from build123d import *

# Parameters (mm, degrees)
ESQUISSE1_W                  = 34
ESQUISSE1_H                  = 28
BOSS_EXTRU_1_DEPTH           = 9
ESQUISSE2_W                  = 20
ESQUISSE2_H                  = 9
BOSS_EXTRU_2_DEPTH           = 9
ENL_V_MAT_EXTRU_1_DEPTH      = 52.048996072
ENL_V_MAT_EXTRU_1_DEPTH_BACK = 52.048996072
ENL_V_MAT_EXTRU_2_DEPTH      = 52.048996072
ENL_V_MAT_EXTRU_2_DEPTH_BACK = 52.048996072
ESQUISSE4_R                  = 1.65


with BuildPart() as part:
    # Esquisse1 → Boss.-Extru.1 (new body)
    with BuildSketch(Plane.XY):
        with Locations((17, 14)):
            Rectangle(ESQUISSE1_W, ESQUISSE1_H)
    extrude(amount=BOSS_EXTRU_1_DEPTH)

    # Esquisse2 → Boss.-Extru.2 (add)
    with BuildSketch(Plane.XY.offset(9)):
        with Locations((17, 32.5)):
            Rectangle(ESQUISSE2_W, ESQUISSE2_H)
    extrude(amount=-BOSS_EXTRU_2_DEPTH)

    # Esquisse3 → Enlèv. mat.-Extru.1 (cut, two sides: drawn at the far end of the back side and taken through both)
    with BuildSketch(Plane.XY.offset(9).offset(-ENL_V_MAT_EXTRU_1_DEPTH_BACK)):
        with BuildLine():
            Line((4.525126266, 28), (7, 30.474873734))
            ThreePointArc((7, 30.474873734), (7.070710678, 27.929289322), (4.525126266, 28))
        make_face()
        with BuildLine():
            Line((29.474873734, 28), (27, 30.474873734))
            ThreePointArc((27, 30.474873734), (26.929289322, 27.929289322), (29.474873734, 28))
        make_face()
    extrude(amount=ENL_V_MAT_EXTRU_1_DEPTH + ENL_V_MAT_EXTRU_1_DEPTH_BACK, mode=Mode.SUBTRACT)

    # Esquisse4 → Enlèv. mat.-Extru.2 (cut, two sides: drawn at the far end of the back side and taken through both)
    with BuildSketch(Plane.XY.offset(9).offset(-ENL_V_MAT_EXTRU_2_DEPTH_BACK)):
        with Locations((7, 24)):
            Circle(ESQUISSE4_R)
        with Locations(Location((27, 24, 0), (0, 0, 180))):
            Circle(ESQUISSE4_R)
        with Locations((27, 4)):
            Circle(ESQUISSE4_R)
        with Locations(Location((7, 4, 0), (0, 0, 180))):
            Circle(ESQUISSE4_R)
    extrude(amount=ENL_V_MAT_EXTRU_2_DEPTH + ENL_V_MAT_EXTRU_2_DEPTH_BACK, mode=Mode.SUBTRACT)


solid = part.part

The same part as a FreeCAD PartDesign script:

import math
import FreeCAD as App
import Part
import Sketcher
from FreeCAD import Vector


def add_polygon(sketch, points):
    """Adds a closed chain of lines whose ends are joined by coincident constraints."""
    first, n = sketch.GeometryCount, len(points)
    for a, b in zip(points, points[1:] + points[:1]):
        sketch.addGeometry(Part.LineSegment(App.Vector(*a, 0), App.Vector(*b, 0)), False)
    for i in range(n):
        sketch.addConstraint(Sketcher.Constraint("Coincident", first + i, 2, first + (i + 1) % n, 1))

doc = App.newDocument("Part")
body = doc.addObject("PartDesign::Body", "Body")

sketch1 = body.newObject("Sketcher::SketchObject", "Sketch")
sketch1.AttachmentSupport = (doc.getObject("XY_Plane"), [""])
sketch1.MapMode = "FlatFace"
add_polygon(sketch1, [(0, 28), (0, 0), (34, 0), (34, 28)])
sketch1.addConstraint([
    Sketcher.Constraint("Vertical", 0),
    Sketcher.Constraint("Horizontal", 1),
    Sketcher.Constraint("Vertical", 2),
    Sketcher.Constraint("Horizontal", 3),
    Sketcher.Constraint("Coincident", 0, 2, -1, 1),
    Sketcher.Constraint("DistanceX", 1, 1, 1, 2, 34.0),
    Sketcher.Constraint("DistanceY", 0, 2, 0, 1, 28.0),
])
pad1 = body.newObject("PartDesign::Pad", "Pad")
pad1.Profile = sketch1
pad1.Length = 9

sketch2 = body.newObject("Sketcher::SketchObject", "Sketch001")
sketch2.AttachmentSupport = (doc.getObject("XY_Plane"), [""])
sketch2.MapMode = "FlatFace"
sketch2.AttachmentOffset = App.Placement(Vector(0, 0, 9), App.Rotation())
add_polygon(sketch2, [(7, 37), (7, 28), (27, 28), (27, 37)])
sketch2.addConstraint([
    Sketcher.Constraint("Vertical", 0),
    Sketcher.Constraint("Horizontal", 1),
    Sketcher.Constraint("Vertical", 2),
    Sketcher.Constraint("Horizontal", 3),
    Sketcher.Constraint("DistanceX", 1, 1, 1, 2, 20.0),
    Sketcher.Constraint("DistanceY", 0, 2, 0, 1, 9.0),
    Sketcher.Constraint("DistanceX", -1, 1, 0, 2, 7.0),
    Sketcher.Constraint("DistanceY", -1, 1, 0, 2, 28.0),
])
pad2 = body.newObject("PartDesign::Pad", "Pad001")
pad2.Profile = sketch2
pad2.Length = 9
pad2.Reversed = True

sketch3 = body.newObject("Sketcher::SketchObject", "Sketch002")
sketch3.AttachmentSupport = (doc.getObject("XY_Plane"), [""])
sketch3.MapMode = "FlatFace"
sketch3.AttachmentOffset = App.Placement(Vector(0, 0, 9), App.Rotation())
sketch3.addGeometry([
    Part.LineSegment(Vector(7, 30.5, 0), Vector(4.5, 28, 0)),
    Part.ArcOfCircle(Part.Circle(Vector(5.8, 29.2, 0), Vector(0, 0, 1), 1.8), math.radians(-138), math.radians(48)),
    Part.LineSegment(Vector(29.5, 28, 0), Vector(27, 30.5, 0)),
    Part.ArcOfCircle(Part.Circle(Vector(28.2, 29.2, 0), Vector(0, 0, 1), 1.8), math.radians(132), math.radians(318)),
], False)
sketch3.addConstraint([
    Sketcher.Constraint("Coincident", 0, 1, 1, 2),
    Sketcher.Constraint("Coincident", 1, 1, 0, 2),
    Sketcher.Constraint("Coincident", 2, 1, 3, 2),
    Sketcher.Constraint("Coincident", 3, 1, 2, 2),
    Sketcher.Constraint("Equal", 1, 3),
    Sketcher.Constraint("Perpendicular", 0, 2),
    Sketcher.Constraint("Horizontal", 1, 3, 3, 3),
    Sketcher.Constraint("Horizontal", 1, 1, 2, 1),
    Sketcher.Constraint("Horizontal", 0, 1, 3, 1),
    Sketcher.Constraint("DistanceX", -1, 1, 0, 1, 7.0),
    Sketcher.Constraint("DistanceY", -1, 1, 1, 1, 28.0),
    Sketcher.Constraint("DistanceX", -1, 1, 3, 1, 27.0),
    Sketcher.Constraint("Distance", 0, 3.5),
    Sketcher.Constraint("Radius", 1, 1.752703),
])
pocket1 = body.newObject("PartDesign::Pocket", "Pocket")
pocket1.Profile = sketch3
pocket1.Type = "ThroughAll"
pocket1.Midplane = True

sketch4 = body.newObject("Sketcher::SketchObject", "Sketch003")
sketch4.AttachmentSupport = (doc.getObject("XY_Plane"), [""])
sketch4.MapMode = "FlatFace"
sketch4.AttachmentOffset = App.Placement(Vector(0, 0, 9), App.Rotation())
sketch4.addGeometry([
    Part.Circle(Vector(7, 24, 0), Vector(0, 0, 1), 1.6),
    Part.Circle(Vector(27, 24, 0), Vector(0, 0, 1), 1.6),
    Part.Circle(Vector(27, 4, 0), Vector(0, 0, 1), 1.6),
    Part.Circle(Vector(7, 4, 0), Vector(0, 0, 1), 1.6),
], False)
sketch4.addConstraint([
    Sketcher.Constraint("Equal", 0, 1),
    Sketcher.Constraint("Equal", 1, 2),
    Sketcher.Constraint("Equal", 2, 3),
    Sketcher.Constraint("Horizontal", 0, 3, 1, 3),
    Sketcher.Constraint("Horizontal", 2, 3, 3, 3),
    Sketcher.Constraint("Vertical", 1, 3, 2, 3),
    Sketcher.Constraint("Vertical", 0, 3, 3, 3),
    Sketcher.Constraint("Diameter", 0, 3.3),
    Sketcher.Constraint("DistanceX", -1, 1, 0, 3, 7.0),
    Sketcher.Constraint("DistanceY", -1, 1, 0, 3, 24.0),
    Sketcher.Constraint("DistanceX", -1, 1, 1, 3, 27.0),
    Sketcher.Constraint("DistanceY", -1, 1, 2, 3, 4.0),
])
pocket2 = body.newObject("PartDesign::Pocket", "Pocket001")
pocket2.Profile = sketch4
pocket2.Type = "ThroughAll"
pocket2.Midplane = True

doc.recompute()
